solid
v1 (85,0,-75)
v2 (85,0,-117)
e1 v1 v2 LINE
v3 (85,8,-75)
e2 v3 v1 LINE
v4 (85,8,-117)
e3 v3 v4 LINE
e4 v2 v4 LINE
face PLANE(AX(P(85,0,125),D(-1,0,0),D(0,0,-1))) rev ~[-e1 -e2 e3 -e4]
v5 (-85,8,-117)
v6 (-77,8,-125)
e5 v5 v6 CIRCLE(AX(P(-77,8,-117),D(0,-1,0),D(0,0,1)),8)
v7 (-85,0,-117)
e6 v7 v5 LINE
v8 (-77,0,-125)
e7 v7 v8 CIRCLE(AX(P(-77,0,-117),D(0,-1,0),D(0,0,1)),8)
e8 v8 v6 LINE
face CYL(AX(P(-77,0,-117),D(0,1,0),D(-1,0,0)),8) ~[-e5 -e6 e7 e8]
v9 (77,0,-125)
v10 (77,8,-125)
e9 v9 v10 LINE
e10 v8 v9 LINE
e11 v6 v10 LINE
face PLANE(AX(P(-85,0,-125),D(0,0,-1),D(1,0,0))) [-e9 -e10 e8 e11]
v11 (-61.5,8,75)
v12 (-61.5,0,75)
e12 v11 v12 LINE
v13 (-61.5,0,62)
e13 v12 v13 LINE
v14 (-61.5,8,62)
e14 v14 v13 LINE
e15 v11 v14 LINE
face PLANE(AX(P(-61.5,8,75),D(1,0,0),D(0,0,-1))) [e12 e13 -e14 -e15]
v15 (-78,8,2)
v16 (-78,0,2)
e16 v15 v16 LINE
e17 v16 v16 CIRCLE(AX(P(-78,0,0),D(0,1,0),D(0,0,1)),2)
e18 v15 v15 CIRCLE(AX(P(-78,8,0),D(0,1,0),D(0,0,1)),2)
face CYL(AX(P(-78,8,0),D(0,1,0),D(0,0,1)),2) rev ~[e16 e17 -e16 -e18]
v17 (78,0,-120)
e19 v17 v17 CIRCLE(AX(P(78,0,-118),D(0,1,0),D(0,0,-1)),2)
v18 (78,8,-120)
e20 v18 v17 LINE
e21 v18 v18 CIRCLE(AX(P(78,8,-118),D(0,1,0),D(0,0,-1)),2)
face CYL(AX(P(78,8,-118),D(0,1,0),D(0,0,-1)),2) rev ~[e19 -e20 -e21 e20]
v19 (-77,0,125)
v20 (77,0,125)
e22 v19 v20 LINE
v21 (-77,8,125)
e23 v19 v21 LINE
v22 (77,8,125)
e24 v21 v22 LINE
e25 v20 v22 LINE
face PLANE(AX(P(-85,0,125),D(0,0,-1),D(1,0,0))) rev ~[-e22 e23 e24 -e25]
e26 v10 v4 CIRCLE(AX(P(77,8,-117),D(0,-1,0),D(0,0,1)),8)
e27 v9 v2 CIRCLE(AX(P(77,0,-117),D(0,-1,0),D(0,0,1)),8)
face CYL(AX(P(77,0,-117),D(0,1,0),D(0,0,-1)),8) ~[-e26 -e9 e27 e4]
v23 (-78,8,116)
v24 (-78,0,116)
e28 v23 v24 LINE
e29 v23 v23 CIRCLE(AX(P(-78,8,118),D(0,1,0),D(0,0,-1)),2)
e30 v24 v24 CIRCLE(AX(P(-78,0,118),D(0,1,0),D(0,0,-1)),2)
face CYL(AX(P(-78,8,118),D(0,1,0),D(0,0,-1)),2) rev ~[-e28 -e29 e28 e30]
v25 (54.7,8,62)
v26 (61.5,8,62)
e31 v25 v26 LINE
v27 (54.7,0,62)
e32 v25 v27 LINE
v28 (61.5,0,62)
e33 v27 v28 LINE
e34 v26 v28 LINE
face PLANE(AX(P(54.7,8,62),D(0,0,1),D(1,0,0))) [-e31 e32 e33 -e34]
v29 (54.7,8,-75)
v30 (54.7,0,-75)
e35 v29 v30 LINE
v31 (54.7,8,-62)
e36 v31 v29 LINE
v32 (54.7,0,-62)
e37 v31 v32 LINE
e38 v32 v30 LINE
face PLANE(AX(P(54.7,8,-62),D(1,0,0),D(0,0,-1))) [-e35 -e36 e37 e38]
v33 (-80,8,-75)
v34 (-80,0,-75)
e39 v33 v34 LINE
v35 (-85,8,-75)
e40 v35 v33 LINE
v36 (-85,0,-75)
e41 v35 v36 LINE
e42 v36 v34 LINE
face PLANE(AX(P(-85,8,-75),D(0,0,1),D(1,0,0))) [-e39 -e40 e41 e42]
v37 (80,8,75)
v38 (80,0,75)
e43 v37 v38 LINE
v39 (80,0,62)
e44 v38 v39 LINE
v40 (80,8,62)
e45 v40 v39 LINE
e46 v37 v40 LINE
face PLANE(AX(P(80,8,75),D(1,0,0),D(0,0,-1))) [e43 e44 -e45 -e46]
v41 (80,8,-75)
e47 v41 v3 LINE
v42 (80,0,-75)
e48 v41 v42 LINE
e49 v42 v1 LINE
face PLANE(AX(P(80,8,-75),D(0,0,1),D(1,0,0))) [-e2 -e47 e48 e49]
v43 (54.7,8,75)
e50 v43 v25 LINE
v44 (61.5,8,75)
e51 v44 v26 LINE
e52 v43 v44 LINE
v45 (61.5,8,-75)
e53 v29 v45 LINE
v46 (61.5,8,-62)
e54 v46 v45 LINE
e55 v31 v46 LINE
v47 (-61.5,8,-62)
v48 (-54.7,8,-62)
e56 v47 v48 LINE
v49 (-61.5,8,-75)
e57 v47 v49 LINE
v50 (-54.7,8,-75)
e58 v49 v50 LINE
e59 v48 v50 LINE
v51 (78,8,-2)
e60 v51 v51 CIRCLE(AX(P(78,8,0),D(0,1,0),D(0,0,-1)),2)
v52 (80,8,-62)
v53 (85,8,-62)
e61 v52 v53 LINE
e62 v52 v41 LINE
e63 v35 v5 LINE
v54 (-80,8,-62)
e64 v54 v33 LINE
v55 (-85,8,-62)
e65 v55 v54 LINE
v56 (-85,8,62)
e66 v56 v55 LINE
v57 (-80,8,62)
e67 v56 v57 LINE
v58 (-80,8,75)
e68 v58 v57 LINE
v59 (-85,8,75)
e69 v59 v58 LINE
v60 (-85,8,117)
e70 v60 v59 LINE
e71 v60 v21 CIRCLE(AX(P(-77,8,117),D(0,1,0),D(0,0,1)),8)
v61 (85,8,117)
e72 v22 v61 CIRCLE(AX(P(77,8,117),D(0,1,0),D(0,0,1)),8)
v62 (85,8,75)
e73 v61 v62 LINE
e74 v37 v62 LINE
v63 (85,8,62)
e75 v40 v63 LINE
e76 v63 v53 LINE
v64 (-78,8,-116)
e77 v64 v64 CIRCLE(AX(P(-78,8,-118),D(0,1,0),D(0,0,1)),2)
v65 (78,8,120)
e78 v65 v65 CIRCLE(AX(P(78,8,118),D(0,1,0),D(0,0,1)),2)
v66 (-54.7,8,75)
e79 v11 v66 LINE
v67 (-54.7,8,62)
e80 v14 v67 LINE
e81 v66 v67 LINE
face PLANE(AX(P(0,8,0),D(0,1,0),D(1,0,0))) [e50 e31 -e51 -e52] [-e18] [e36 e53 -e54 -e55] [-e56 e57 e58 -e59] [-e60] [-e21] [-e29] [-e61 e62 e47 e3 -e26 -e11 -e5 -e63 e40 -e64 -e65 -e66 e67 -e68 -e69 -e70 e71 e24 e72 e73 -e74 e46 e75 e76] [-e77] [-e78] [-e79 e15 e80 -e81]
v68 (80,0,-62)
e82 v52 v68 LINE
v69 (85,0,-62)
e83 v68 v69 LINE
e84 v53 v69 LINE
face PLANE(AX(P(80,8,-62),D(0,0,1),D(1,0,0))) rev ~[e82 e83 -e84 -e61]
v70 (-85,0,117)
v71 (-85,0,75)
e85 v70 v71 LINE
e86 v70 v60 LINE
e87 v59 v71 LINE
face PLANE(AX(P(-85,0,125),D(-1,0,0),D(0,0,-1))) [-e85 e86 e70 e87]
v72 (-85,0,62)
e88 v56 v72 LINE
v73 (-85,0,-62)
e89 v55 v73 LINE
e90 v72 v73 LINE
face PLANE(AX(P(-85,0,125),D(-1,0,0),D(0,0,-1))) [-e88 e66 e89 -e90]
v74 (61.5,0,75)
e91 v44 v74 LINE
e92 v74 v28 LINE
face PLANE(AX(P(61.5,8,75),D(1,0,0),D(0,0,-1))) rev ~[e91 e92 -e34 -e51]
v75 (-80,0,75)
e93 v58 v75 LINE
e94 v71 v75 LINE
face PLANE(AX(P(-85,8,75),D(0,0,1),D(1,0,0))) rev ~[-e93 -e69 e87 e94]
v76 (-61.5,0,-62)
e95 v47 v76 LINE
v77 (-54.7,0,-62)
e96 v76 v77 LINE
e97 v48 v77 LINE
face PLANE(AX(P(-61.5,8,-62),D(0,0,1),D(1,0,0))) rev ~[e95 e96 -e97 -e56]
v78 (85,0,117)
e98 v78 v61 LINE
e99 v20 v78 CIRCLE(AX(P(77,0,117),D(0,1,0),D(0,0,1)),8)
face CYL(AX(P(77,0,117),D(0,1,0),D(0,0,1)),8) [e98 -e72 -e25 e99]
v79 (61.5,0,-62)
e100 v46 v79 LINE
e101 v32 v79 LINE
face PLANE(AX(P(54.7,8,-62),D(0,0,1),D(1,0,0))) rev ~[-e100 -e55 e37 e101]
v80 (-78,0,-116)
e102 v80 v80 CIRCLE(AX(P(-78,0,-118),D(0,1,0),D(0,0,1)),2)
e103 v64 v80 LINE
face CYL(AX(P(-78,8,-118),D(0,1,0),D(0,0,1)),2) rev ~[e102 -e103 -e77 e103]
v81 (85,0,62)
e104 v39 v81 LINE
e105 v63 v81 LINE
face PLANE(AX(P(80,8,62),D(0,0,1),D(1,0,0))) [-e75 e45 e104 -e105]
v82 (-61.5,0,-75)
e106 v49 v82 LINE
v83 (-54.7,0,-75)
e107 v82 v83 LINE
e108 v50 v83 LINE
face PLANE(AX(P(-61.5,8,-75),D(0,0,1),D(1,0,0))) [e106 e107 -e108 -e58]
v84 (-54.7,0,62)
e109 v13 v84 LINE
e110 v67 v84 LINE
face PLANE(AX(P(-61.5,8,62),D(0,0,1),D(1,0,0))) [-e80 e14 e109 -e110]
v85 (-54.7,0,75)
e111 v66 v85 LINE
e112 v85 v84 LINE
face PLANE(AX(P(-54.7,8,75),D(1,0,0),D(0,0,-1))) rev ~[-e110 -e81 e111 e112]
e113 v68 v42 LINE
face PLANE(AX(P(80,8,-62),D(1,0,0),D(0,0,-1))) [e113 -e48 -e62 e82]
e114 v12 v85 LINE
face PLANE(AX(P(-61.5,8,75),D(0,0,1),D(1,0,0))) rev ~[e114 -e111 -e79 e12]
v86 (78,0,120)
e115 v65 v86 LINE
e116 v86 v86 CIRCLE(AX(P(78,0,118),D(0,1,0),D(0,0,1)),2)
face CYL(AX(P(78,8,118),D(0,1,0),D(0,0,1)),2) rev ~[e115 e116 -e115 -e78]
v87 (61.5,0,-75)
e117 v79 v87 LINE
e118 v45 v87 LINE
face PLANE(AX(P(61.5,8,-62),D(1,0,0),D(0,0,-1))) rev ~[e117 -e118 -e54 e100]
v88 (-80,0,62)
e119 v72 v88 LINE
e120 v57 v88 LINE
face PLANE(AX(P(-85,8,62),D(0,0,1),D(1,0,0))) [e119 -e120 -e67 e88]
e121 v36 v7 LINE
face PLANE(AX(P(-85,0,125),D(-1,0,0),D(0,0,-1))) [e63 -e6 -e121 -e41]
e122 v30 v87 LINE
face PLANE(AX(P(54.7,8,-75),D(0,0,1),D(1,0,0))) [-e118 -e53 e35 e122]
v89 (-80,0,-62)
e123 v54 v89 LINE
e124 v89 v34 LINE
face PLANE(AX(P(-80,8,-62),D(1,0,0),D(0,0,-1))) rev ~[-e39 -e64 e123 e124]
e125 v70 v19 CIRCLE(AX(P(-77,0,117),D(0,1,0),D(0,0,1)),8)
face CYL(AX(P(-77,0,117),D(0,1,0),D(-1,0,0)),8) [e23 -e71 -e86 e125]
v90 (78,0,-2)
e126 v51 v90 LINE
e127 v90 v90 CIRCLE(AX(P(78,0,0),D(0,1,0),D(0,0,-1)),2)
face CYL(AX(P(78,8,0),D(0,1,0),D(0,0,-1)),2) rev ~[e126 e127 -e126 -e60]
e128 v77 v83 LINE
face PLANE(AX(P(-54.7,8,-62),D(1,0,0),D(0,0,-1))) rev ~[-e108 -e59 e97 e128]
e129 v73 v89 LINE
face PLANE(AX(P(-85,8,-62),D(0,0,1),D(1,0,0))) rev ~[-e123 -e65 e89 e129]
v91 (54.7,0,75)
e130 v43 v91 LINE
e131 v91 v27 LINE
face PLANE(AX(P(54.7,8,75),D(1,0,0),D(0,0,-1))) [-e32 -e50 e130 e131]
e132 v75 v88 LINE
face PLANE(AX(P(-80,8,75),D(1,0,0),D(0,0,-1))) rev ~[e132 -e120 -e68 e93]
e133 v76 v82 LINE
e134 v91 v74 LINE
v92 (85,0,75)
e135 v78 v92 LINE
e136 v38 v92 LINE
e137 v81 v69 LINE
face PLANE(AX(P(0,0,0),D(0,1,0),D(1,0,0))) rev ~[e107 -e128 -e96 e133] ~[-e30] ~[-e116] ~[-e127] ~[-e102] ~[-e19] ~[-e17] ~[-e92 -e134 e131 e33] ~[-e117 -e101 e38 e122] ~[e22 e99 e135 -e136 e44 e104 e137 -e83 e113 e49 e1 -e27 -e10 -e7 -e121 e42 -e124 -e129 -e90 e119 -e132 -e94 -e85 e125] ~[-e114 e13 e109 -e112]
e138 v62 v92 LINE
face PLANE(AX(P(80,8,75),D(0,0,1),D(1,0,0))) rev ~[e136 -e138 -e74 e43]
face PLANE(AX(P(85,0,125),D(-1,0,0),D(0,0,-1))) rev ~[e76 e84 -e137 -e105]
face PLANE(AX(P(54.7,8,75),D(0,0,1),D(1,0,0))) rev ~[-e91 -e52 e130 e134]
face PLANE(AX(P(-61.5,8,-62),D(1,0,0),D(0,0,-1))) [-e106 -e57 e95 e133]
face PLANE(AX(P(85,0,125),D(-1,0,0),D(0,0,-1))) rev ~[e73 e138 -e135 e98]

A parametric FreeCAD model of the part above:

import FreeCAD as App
import Part
import Sketcher

V = App.Vector


def edges_at(feature, points):
    """Names of the edges that pass closest to the given points."""
    edges = feature.Shape.Edges
    near = lambda p: min(range(len(edges)), key=lambda i: edges[i].distToShape(Part.Vertex(*p))[0])
    return sorted({f"Edge{near(p) + 1}" for p in points})

doc = App.newDocument("Part")
body = doc.addObject("PartDesign::Body", "Body")

sketch1 = doc.addObject("Sketcher::SketchObject", "Sketch")
body.addObject(sketch1)
sketch1.AttachmentSupport = (doc.XZ_Plane, [""])
sketch1.MapMode = "FlatFace"
sketch1.addGeometry([
    Part.LineSegment(V(-85, -125, 0), V(-85, 125, 0)),
    Part.LineSegment(V(-85, 125, 0), V(85, 125, 0)),
    Part.LineSegment(V(85, 125, 0), V(85, -125, 0)),
    Part.LineSegment(V(85, -125, 0), V(-85, -125, 0)),
], False)
sketch1.addConstraint([
    Sketcher.Constraint("Coincident", 0, 2, 1, 1),
    Sketcher.Constraint("Coincident", 1, 2, 2, 1),
    Sketcher.Constraint("Coincident", 2, 2, 3, 1),
    Sketcher.Constraint("Coincident", 3, 2, 0, 1),
    Sketcher.Constraint("Vertical", 0),
    Sketcher.Constraint("Horizontal", 1),
    Sketcher.Constraint("Vertical", 2),
    Sketcher.Constraint("Horizontal", 3),
    Sketcher.Constraint("Symmetric", 0, 2, 2, 2, -1, 1),
    Sketcher.Constraint("DistanceX", 1, 1, 1, 2, 170.0),
    Sketcher.Constraint("DistanceY", 0, 1, 0, 2, 250.0),
])
pad1 = doc.addObject("PartDesign::Pad", "Pad")
body.addObject(pad1)
pad1.Profile = sketch1
pad1.Length = 8
pad1.Reversed = True

sketch2 = doc.addObject("Sketcher::SketchObject", "Sketch001")
body.addObject(sketch2)
sketch2.AttachmentSupport = (doc.XZ_Plane, [""])
sketch2.MapMode = "FlatFace"
sketch2.AttachmentOffset = App.Placement(V(0, 0, -8), App.Rotation())
sketch2.addGeometry([
    Part.LineSegment(V(80, -75, 0), V(80, -62, 0)),
    Part.LineSegment(V(80, -62, 0), V(85, -62, 0)),
    Part.LineSegment(V(85, -62, 0), V(85, -75, 0)),
    Part.LineSegment(V(85, -75, 0), V(80, -75, 0)),
    Part.LineSegment(V(-85, -75, 0), V(-85, -62, 0)),
    Part.LineSegment(V(-85, -62, 0), V(-80, -62, 0)),
    Part.LineSegment(V(-80, -62, 0), V(-80, -75, 0)),
    Part.LineSegment(V(-80, -75, 0), V(-85, -75, 0)),
    Part.LineSegment(V(80, 62, 0), V(80, 75, 0)),
    Part.LineSegment(V(80, 75, 0), V(85, 75, 0)),
    Part.LineSegment(V(85, 75, 0), V(85, 62, 0)),
    Part.LineSegment(V(85, 62, 0), V(80, 62, 0)),
    Part.LineSegment(V(-85, 62, 0), V(-85, 75, 0)),
    Part.LineSegment(V(-85, 75, 0), V(-80, 75, 0)),
    Part.LineSegment(V(-80, 75, 0), V(-80, 62, 0)),
    Part.LineSegment(V(-80, 62, 0), V(-85, 62, 0)),
], False)
sketch2.addConstraint([
    Sketcher.Constraint("Coincident", 0, 2, 1, 1),
    Sketcher.Constraint("Coincident", 1, 2, 2, 1),
    Sketcher.Constraint("Coincident", 2, 2, 3, 1),
    Sketcher.Constraint("Coincident", 3, 2, 0, 1),
    Sketcher.Constraint("Coincident", 4, 2, 5, 1),
    Sketcher.Constraint("Coincident", 5, 2, 6, 1),
    Sketcher.Constraint("Coincident", 6, 2, 7, 1),
    Sketcher.Constraint("Coincident", 7, 2, 4, 1),
    Sketcher.Constraint("Coincident", 8, 2, 9, 1),
    Sketcher.Constraint("Coincident", 9, 2, 10, 1),
    Sketcher.Constraint("Coincident", 10, 2, 11, 1),
    Sketcher.Constraint("Coincident", 11, 2, 8, 1),
    Sketcher.Constraint("Coincident", 12, 2, 13, 1),
    Sketcher.Constraint("Coincident", 13, 2, 14, 1),
    Sketcher.Constraint("Coincident", 14, 2, 15, 1),
    Sketcher.Constraint("Coincident", 15, 2, 12, 1),
    Sketcher.Constraint("Vertical", 0),
    Sketcher.Constraint("Horizontal", 1),
    Sketcher.Constraint("Vertical", 2),
    Sketcher.Constraint("Horizontal", 3),
    Sketcher.Constraint("Vertical", 4),
    Sketcher.Constraint("Horizontal", 5),
    Sketcher.Constraint("Vertical", 6),
    Sketcher.Constraint("Horizontal", 7),
    Sketcher.Constraint("Vertical", 8),
    Sketcher.Constraint("Horizontal", 9),
    Sketcher.Constraint("Vertical", 10),
    Sketcher.Constraint("Horizontal", 11),
    Sketcher.Constraint("Vertical", 12),
    Sketcher.Constraint("Horizontal", 13),
    Sketcher.Constraint("Vertical", 14),
    Sketcher.Constraint("Horizontal", 15),
    Sketcher.Constraint("Symmetric", 6, 2, 8, 2, -1, 1),
    Sketcher.Constraint("Symmetric", 4, 2, 10, 2, -1, 1),
    Sketcher.Constraint("Symmetric", 2, 2, 12, 2, -1, 1),
    Sketcher.Constraint("Symmetric", 0, 2, 14, 2, -1, 1),
    Sketcher.Constraint("Symmetric", 1, 2, 4, 2, -2),
    Sketcher.Constraint("Symmetric", 3, 2, 6, 2, -2),
    Sketcher.Constraint("DistanceX", 1, 1, 1, 2, 5.0),
    Sketcher.Constraint("DistanceY", 0, 1, 0, 2, 13.0),
    Sketcher.Constraint("DistanceX", -1, 1, 0, 2, 80.0),
    Sketcher.Constraint("DistanceY", 0, 2, -1, 1, 62.0),
])
pocket1 = doc.addObject("PartDesign::Pocket", "Pocket")
body.addObject(pocket1)
pocket1.Profile = sketch2
pocket1.Length = 8
pocket1.Reversed = True

sketch3 = doc.addObject("Sketcher::SketchObject", "Sketch002")
body.addObject(sketch3)
sketch3.AttachmentSupport = (doc.XZ_Plane, [""])
sketch3.MapMode = "FlatFace"
sketch3.AttachmentOffset = App.Placement(V(0, 0, -8), App.Rotation())
sketch3.addGeometry([
    Part.Circle(V(-78, -118, 0), V(0, 0, 1), 2),
    Part.Circle(V(78, -118, 0), V(0, 0, 1), 2),
    Part.Circle(V(78, 118, 0), V(0, 0, 1), 2),
    Part.Circle(V(-78, 118, 0), V(0, 0, 1), 2),
    Part.Circle(V(-78, 0, 0), V(0, 0, 1), 2),
    Part.Circle(V(78, 0, 0), V(0, 0, 1), 2),
    Part.LineSegment(V(-61.5, -75, 0), V(-61.5, -62, 0)),
    Part.LineSegment(V(-61.5, -62, 0), V(-54.7, -62, 0)),
    Part.LineSegment(V(-54.7, -62, 0), V(-54.7, -75, 0)),
    Part.LineSegment(V(-54.7, -75, 0), V(-61.5, -75, 0)),
    Part.LineSegment(V(54.7, -75, 0), V(54.7, -62, 0)),
    Part.LineSegment(V(54.7, -62, 0), V(61.5, -62, 0)),
    Part.LineSegment(V(61.5, -62, 0), V(61.5, -75, 0)),
    Part.LineSegment(V(61.5, -75, 0), V(54.7, -75, 0)),
    Part.LineSegment(V(54.7, 62, 0), V(54.7, 75, 0)),
    Part.LineSegment(V(54.7, 75, 0), V(61.5, 75, 0)),
    Part.LineSegment(V(61.5, 75, 0), V(61.5, 62, 0)),
    Part.LineSegment(V(61.5, 62, 0), V(54.7, 62, 0)),
    Part.LineSegment(V(-61.5, 62, 0), V(-61.5, 75, 0)),
    Part.LineSegment(V(-61.5, 75, 0), V(-54.7, 75, 0)),
    Part.LineSegment(V(-54.7, 75, 0), V(-54.7, 62, 0)),
    Part.LineSegment(V(-54.7, 62, 0), V(-61.5, 62, 0)),
], False)
sketch3.addConstraint([
    Sketcher.Constraint("Coincident", 6, 2, 7, 1),
    Sketcher.Constraint("Coincident", 7, 2, 8, 1),
    Sketcher.Constraint("Coincident", 8, 2, 9, 1),
    Sketcher.Constraint("Coincident", 9, 2, 6, 1),
    Sketcher.Constraint("Coincident", 10, 2, 11, 1),
    Sketcher.Constraint("Coincident", 11, 2, 12, 1),
    Sketcher.Constraint("Coincident", 12, 2, 13, 1),
    Sketcher.Constraint("Coincident", 13, 2, 10, 1),
    Sketcher.Constraint("Coincident", 14, 2, 15, 1),
    Sketcher.Constraint("Coincident", 15, 2, 16, 1),
    Sketcher.Constraint("Coincident", 16, 2, 17, 1),
    Sketcher.Constraint("Coincident", 17, 2, 14, 1),
    Sketcher.Constraint("Coincident", 18, 2, 19, 1),
    Sketcher.Constraint("Coincident", 19, 2, 20, 1),
    Sketcher.Constraint("Coincident", 20, 2, 21, 1),
    Sketcher.Constraint("Coincident", 21, 2, 18, 1),
    Sketcher.Constraint("Vertical", 6),
    Sketcher.Constraint("Horizontal", 7),
    Sketcher.Constraint("Vertical", 8),
    Sketcher.Constraint("Horizontal", 9),
    Sketcher.Constraint("Vertical", 10),
    Sketcher.Constraint("Horizontal", 11),
    Sketcher.Constraint("Vertical", 12),
    Sketcher.Constraint("Horizontal", 13),
    Sketcher.Constraint("Vertical", 14),
    Sketcher.Constraint("Horizontal", 15),
    Sketcher.Constraint("Vertical", 16),
    Sketcher.Constraint("Horizontal", 17),
    Sketcher.Constraint("Vertical", 18),
    Sketcher.Constraint("Horizontal", 19),
    Sketcher.Constraint("Vertical", 20),
    Sketcher.Constraint("Horizontal", 21),
    Sketcher.Constraint("Equal", 0, 1),
    Sketcher.Constraint("Equal", 1, 2),
    Sketcher.Constraint("Equal", 2, 3),
    Sketcher.Constraint("Equal", 3, 4),
    Sketcher.Constraint("Equal", 4, 5),
    Sketcher.Constraint("Symmetric", 0, 3, 2, 3, -1, 1),
    Sketcher.Constraint("Symmetric", 1, 3, 3, 3, -1, 1),
    Sketcher.Constraint("Symmetric", 4, 3, 5, 3, -1, 1),
    Sketcher.Constraint("Symmetric", 8, 2, 14, 2, -1, 1),
    Sketcher.Constraint("Symmetric", 6, 2, 16, 2, -1, 1),
    Sketcher.Constraint("Symmetric", 12, 2, 18, 2, -1, 1),
    Sketcher.Constraint("Symmetric", 10, 2, 20, 2, -1, 1),
    Sketcher.Constraint("Symmetric", 0, 3, 1, 3, -2),
    Sketcher.Constraint("Symmetric", 7, 2, 10, 2, -2),
    Sketcher.Constraint("Symmetric", 9, 2, 12, 2, -2),
    Sketcher.Constraint("PointOnObject", 4, 3, -1),
    Sketcher.Constraint("Vertical", 3, 3, 4, 3),
    Sketcher.Constraint("Diameter", 0, 4.0),
    Sketcher.Constraint("DistanceY", 6, 1, 6, 2, 13.0),
    Sketcher.Constraint("DistanceX", 7, 1, 7, 2, 6.8),
    Sketcher.Constraint("DistanceX", 0, 3, -1, 1, 78.0),
    Sketcher.Constraint("DistanceY", 0, 3, -1, 1, 118.0),
    Sketcher.Constraint("DistanceY", 6, 2, -1, 1, 62.0),
    Sketcher.Constraint("DistanceX", 18, 2, 15, 2, 123.0),
])
pocket2 = doc.addObject("PartDesign::Pocket", "Pocket001")
body.addObject(pocket2)
pocket2.Profile = sketch3
pocket2.Length = 8
pocket2.Reversed = True
doc.recompute()

fillet = doc.addObject("PartDesign::Fillet", "Fillet")
body.addObject(fillet)
fillet.Base = (pocket2, edges_at(pocket2, [
    (85, 4, 125),
    (-85, 4, 125),
    (-85, 4, -125),
    (85, 4, -125),
]))
fillet.Radius = 8

doc.recompute()
